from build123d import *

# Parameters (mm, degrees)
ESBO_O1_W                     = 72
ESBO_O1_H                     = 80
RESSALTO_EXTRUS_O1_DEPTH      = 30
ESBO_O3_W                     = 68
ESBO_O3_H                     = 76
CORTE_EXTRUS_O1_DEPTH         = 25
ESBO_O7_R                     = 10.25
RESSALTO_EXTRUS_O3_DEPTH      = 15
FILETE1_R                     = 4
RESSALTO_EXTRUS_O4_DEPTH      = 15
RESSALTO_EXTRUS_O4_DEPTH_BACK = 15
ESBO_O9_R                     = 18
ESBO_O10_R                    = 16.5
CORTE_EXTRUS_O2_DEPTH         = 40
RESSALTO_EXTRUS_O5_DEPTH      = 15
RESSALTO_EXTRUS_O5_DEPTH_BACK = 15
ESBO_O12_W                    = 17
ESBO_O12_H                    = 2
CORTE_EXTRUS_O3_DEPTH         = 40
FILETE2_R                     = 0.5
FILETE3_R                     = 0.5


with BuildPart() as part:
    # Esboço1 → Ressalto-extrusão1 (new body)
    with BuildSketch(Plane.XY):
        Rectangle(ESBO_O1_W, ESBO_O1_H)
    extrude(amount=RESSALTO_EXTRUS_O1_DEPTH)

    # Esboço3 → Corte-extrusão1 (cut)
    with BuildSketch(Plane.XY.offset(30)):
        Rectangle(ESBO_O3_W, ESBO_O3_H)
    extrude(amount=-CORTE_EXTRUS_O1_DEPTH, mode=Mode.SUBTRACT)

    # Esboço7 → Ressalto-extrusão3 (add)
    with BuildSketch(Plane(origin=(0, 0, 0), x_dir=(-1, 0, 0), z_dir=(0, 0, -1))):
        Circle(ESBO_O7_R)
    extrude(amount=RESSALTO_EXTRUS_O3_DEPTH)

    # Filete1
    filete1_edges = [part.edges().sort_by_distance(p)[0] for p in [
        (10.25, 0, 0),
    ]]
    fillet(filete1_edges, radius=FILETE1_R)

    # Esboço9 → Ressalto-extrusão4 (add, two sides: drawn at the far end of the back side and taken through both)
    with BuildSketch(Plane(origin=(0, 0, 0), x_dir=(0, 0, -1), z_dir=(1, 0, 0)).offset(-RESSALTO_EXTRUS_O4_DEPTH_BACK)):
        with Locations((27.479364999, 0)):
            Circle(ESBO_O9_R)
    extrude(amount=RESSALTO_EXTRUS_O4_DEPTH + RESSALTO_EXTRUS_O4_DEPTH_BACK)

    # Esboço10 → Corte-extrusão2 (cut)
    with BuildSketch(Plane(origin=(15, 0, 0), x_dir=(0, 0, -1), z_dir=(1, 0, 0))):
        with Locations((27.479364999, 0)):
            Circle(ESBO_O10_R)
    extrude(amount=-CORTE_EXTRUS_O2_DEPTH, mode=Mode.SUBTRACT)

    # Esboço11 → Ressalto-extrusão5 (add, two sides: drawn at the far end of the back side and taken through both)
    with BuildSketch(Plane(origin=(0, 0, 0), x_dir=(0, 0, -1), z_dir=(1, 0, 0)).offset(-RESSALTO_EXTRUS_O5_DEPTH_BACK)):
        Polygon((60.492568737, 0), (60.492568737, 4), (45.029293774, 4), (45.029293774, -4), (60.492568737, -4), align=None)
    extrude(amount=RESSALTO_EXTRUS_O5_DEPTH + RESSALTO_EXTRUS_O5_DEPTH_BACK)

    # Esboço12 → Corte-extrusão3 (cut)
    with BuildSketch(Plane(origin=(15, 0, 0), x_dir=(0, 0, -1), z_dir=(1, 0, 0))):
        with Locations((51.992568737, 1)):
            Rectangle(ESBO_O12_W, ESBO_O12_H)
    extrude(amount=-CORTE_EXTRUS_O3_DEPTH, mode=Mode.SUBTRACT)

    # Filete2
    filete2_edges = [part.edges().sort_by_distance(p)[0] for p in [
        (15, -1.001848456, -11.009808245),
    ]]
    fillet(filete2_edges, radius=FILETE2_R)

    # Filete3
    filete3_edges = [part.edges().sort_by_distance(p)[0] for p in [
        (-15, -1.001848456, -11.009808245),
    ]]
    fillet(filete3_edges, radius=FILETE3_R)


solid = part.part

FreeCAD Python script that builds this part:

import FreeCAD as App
import Part
import Sketcher
from FreeCAD import Vector


def edges_at(feature, points):
    """Names of the edges that pass closest to the given points."""
    edges = feature.Shape.Edges
    near = lambda p: min(range(len(edges)), key=lambda i: edges[i].distToShape(Part.Vertex(*p))[0])
    return sorted({f"Edge{near(p) + 1}" for p in points})

doc = App.newDocument("Part")
body = doc.addObject("PartDesign::Body", "Body")

# Sketch on XY plane
sketch1 = body.newObject("Sketcher::SketchObject", "Sketch")
sketch1.AttachmentSupport = (doc.getObject("XY_Plane"), [""])
sketch1.MapMode = "FlatFace"
sketch1.addGeometry(Part.LineSegment(Vector(-36, 40, 0), Vector(-36, -40, 0)), False)
sketch1.addGeometry(Part.LineSegment(Vector(-36, -40, 0), Vector(36, -40, 0)), False)
sketch1.addGeometry(Part.LineSegment(Vector(36, -40, 0), Vector(36, 40, 0)), False)
sketch1.addGeometry(Part.LineSegment(Vector(36, 40, 0), Vector(-36, 40, 0)), False)
sketch1.addConstraint(Sketcher.Constraint("Coincident", 0, 2, 1, 1))
sketch1.addConstraint(Sketcher.Constraint("Coincident", 1, 2, 2, 1))
sketch1.addConstraint(Sketcher.Constraint("Coincident", 2, 2, 3, 1))
sketch1.addConstraint(Sketcher.Constraint("Coincident", 3, 2, 0, 1))
sketch1.addConstraint(Sketcher.Constraint("Vertical", 0))
sketch1.addConstraint(Sketcher.Constraint("Horizontal", 1))
sketch1.addConstraint(Sketcher.Constraint("Vertical", 2))
sketch1.addConstraint(Sketcher.Constraint("Horizontal", 3))
sketch1.addConstraint(Sketcher.Constraint("Symmetric", 0, 2, 2, 2, -1, 1))
sketch1.addConstraint(Sketcher.Constraint("DistanceX", 1, 1, 1, 2, 72.0))
sketch1.addConstraint(Sketcher.Constraint("DistanceY", 0, 2, 0, 1, 80.0))
pad1 = body.newObject("PartDesign::Pad", "Pad")
pad1.Profile = sketch1
pad1.Length = 30

# Sketch on XY plane
sketch2 = body.newObject("Sketcher::SketchObject", "Sketch001")
sketch2.AttachmentSupport = (doc.getObject("XY_Plane"), [""])
sketch2.MapMode = "FlatFace"
sketch2.AttachmentOffset = App.Placement(Vector(0, 0, 30), App.Rotation())
sketch2.addGeometry(Part.LineSegment(Vector(-34, 38, 0), Vector(-34, -38, 0)), False)
sketch2.addGeometry(Part.LineSegment(Vector(-34, -38, 0), Vector(34, -38, 0)), False)
sketch2.addGeometry(Part.LineSegment(Vector(34, -38, 0), Vector(34, 38, 0)), False)
sketch2.addGeometry(Part.LineSegment(Vector(34, 38, 0), Vector(-34, 38, 0)), False)
sketch2.addConstraint(Sketcher.Constraint("Coincident", 0, 2, 1, 1))
sketch2.addConstraint(Sketcher.Constraint("Coincident", 1, 2, 2, 1))
sketch2.addConstraint(Sketcher.Constraint("Coincident", 2, 2, 3, 1))
sketch2.addConstraint(Sketcher.Constraint("Coincident", 3, 2, 0, 1))
sketch2.addConstraint(Sketcher.Constraint("Vertical", 0))
sketch2.addConstraint(Sketcher.Constraint("Horizontal", 1))
sketch2.addConstraint(Sketcher.Constraint("Vertical", 2))
sketch2.addConstraint(Sketcher.Constraint("Horizontal", 3))
sketch2.addConstraint(Sketcher.Constraint("Symmetric", 0, 2, 2, 2, -1, 1))
sketch2.addConstraint(Sketcher.Constraint("DistanceX", 1, 1, 1, 2, 68.0))
sketch2.addConstraint(Sketcher.Constraint("DistanceY", 0, 2, 0, 1, 76.0))
pocket1 = body.newObject("PartDesign::Pocket", "Pocket")
pocket1.Profile = sketch2
pocket1.Length = 25

# Sketch on XY plane
sketch3 = body.newObject("Sketcher::SketchObject", "Sketch002")
sketch3.AttachmentSupport = (doc.getObject("XY_Plane"), [""])
sketch3.MapMode = "FlatFace"
sketch3.addGeometry(Part.Circle(Vector(0, 0, 0), Vector(0, 0, 1), 10), False)
sketch3.addConstraint(Sketcher.Constraint("Coincident", 0, 3, -1, 1))
sketch3.addConstraint(Sketcher.Constraint("Diameter", 0, 20.5))
pad2 = body.newObject("PartDesign::Pad", "Pad001")
pad2.Profile = sketch3
pad2.Length = 15
pad2.Reversed = True
doc.recompute()

fillet = body.newObject("PartDesign::Fillet", "Fillet")
fillet.Base = (pad2, edges_at(pad2, [(10.25, 0, 0)]))
fillet.Radius = 4

# Sketch on YZ plane
sketch4 = body.newObject("Sketcher::SketchObject", "Sketch003")
sketch4.AttachmentSupport = (doc.getObject("YZ_Plane"), [""])
sketch4.MapMode = "FlatFace"
sketch4.addGeometry(Part.Circle(Vector(0, -27, 0), Vector(0, 0, 1), 18), False)
sketch4.addConstraint(Sketcher.Constraint("PointOnObject", 0, 3, -2))
sketch4.addConstraint(Sketcher.Constraint("Diameter", 0, 36.0))
sketch4.addConstraint(Sketcher.Constraint("DistanceY", 0, 3, -1, 1, 27.479365))
pad3 = body.newObject("PartDesign::Pad", "Pad002")
pad3.Profile = sketch4
pad3.Type = "TwoLengths"
pad3.Length = 15
pad3.Length2 = 15

# Sketch on YZ plane
sketch5 = body.newObject("Sketcher::SketchObject", "Sketch004")
sketch5.AttachmentSupport = (doc.getObject("YZ_Plane"), [""])
sketch5.MapMode = "FlatFace"
sketch5.AttachmentOffset = App.Placement(Vector(0, 0, 15), App.Rotation())
sketch5.addGeometry(Part.Circle(Vector(0, -27, 0), Vector(0, 0, 1), 16), False)
sketch5.addConstraint(Sketcher.Constraint("PointOnObject", 0, 3, -2))
sketch5.addConstraint(Sketcher.Constraint("Diameter", 0, 33.0))
sketch5.addConstraint(Sketcher.Constraint("DistanceY", 0, 3, -1, 1, 27.479365))
pocket2 = body.newObject("PartDesign::Pocket", "Pocket001")
pocket2.Profile = sketch5
pocket2.Length = 40

# Sketch on YZ plane
sketch6 = body.newObject("Sketcher::SketchObject", "Sketch005")
sketch6.AttachmentSupport = (doc.getObject("YZ_Plane"), [""])
sketch6.MapMode = "FlatFace"
sketch6.addGeometry(Part.LineSegment(Vector(4, -60, 0), Vector(4, -45, 0)), False)
sketch6.addGeometry(Part.LineSegment(Vector(4, -45, 0), Vector(-4, -45, 0)), False)
sketch6.addGeometry(Part.LineSegment(Vector(-4, -45, 0), Vector(-4, -60, 0)), False)
sketch6.addGeometry(Part.LineSegment(Vector(-4, -60, 0), Vector(4, -60, 0)), False)
sketch6.addConstraint(Sketcher.Constraint("Coincident", 0, 2, 1, 1))
sketch6.addConstraint(Sketcher.Constraint("Coincident", 1, 2, 2, 1))
sketch6.addConstraint(Sketcher.Constraint("Coincident", 2, 2, 3, 1))
sketch6.addConstraint(Sketcher.Constraint("Coincident", 3, 2, 0, 1))
sketch6.addConstraint(Sketcher.Constraint("Vertical", 0))
sketch6.addConstraint(Sketcher.Constraint("Horizontal", 1))
sketch6.addConstraint(Sketcher.Constraint("Vertical", 2))
sketch6.addConstraint(Sketcher.Constraint("Horizontal", 3))
sketch6.addConstraint(Sketcher.Constraint("DistanceX", 1, 2, 1, 1, 8.0))
sketch6.addConstraint(Sketcher.Constraint("DistanceX", -1, 1, 0, 2, 4.0))
sketch6.addConstraint(Sketcher.Constraint("DistanceY", 0, 1, 0, 2, 15.463275))
sketch6.addConstraint(Sketcher.Constraint("DistanceY", 2, 2, -1, 1, 60.492569))
pad4 = body.newObject("PartDesign::Pad", "Pad003")
pad4.Profile = sketch6
pad4.Type = "TwoLengths"
pad4.Length = 15
pad4.Length2 = 15

# Sketch on YZ plane
sketch7 = body.newObject("Sketcher::SketchObject", "Sketch006")
sketch7.AttachmentSupport = (doc.getObject("YZ_Plane"), [""])
sketch7.MapMode = "FlatFace"
sketch7.AttachmentOffset = App.Placement(Vector(0, 0, 15), App.Rotation())
sketch7.addGeometry(Part.LineSegment(Vector(2, -43.5, 0), Vector(0, -43.5, 0)), False)
sketch7.addGeometry(Part.LineSegment(Vector(0, -43.5, 0), Vector(0, -60.5, 0)), False)
sketch7.addGeometry(Part.LineSegment(Vector(0, -60.5, 0), Vector(2, -60.5, 0)), False)
sketch7.addGeometry(Part.LineSegment(Vector(2, -60.5, 0), Vector(2, -43.5, 0)), False)
sketch7.addConstraint(Sketcher.Constraint("Coincident", 0, 2, 1, 1))
sketch7.addConstraint(Sketcher.Constraint("Coincident", 1, 2, 2, 1))
sketch7.addConstraint(Sketcher.Constraint("Coincident", 2, 2, 3, 1))
sketch7.addConstraint(Sketcher.Constraint("Coincident", 3, 2, 0, 1))
sketch7.addConstraint(Sketcher.Constraint("Horizontal", 0))
sketch7.addConstraint(Sketcher.Constraint("Vertical", 1))
sketch7.addConstraint(Sketcher.Constraint("Horizontal", 2))
sketch7.addConstraint(Sketcher.Constraint("Vertical", 3))
sketch7.addConstraint(Sketcher.Constraint("PointOnObject", 0, 2, -2))
sketch7.addConstraint(Sketcher.Constraint("DistanceX", 0, 2, 0, 1, 2.0))
sketch7.addConstraint(Sketcher.Constraint("DistanceY", 1, 2, 1, 1, 17.0))
sketch7.addConstraint(Sketcher.Constraint("DistanceY", 0, 2, -1, 1, 43.492569))
pocket3 = body.newObject("PartDesign::Pocket", "Pocket002")
pocket3.Profile = sketch7
pocket3.Length = 40
doc.recompute()

fillet2 = body.newObject("PartDesign::Fillet", "Fillet001")
fillet2.Base = (pocket3, edges_at(pocket3, [(15, -1.002, -11.01)]))
fillet2.Radius = 0.5
doc.recompute()

fillet3 = body.newObject("PartDesign::Fillet", "Fillet002")
fillet3.Base = (fillet2, edges_at(fillet2, [(-15, -1.002, -11.01)]))
fillet3.Radius = 0.5

doc.recompute()
